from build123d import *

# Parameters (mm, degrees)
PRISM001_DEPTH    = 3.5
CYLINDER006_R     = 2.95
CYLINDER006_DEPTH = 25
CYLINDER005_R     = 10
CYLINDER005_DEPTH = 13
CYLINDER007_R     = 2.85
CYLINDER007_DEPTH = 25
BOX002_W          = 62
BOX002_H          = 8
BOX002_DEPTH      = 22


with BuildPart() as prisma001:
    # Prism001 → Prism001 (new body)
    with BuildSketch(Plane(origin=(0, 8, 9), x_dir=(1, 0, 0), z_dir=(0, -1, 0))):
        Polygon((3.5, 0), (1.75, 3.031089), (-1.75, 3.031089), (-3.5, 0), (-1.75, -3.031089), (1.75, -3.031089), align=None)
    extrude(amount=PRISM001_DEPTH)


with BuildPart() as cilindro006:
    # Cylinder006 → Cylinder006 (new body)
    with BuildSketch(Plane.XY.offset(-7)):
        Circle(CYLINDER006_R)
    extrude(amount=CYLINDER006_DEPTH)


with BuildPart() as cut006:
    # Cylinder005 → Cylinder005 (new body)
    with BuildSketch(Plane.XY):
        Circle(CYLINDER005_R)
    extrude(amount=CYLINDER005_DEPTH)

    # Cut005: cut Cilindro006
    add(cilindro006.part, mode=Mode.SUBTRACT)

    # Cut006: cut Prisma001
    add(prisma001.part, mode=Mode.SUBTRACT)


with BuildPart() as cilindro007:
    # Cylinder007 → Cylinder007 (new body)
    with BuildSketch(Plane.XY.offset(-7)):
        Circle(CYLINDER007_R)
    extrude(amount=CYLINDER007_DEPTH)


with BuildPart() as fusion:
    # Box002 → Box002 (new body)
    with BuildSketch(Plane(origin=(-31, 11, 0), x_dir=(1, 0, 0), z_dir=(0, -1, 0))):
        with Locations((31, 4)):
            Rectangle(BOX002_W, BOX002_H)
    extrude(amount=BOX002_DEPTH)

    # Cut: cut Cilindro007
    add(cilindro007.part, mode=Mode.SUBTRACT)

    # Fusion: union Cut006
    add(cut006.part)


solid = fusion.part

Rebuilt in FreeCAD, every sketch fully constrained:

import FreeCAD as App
import Part
import Sketcher

V = App.Vector
Q = App.Units.Quantity


def add_polygon(sketch, points):
    """Adds a closed chain of lines whose ends are joined by coincident constraints."""
    first, n = sketch.GeometryCount, len(points)
    for a, b in zip(points, points[1:] + points[:1]):
        sketch.addGeometry(Part.LineSegment(App.Vector(*a, 0), App.Vector(*b, 0)), False)
    for i in range(n):
        sketch.addConstraint(Sketcher.Constraint("Coincident", first + i, 2, first + (i + 1) % n, 1))

doc = App.newDocument("Part")
body = doc.addObject("PartDesign::Body", "Body")

# Sketch on XZ plane
sketch1 = doc.addObject("Sketcher::SketchObject", "Sketch")
body.addObject(sketch1)
sketch1.AttachmentSupport = (doc.XZ_Plane, [""])
sketch1.MapMode = "FlatFace"
sketch1.AttachmentOffset = App.Placement(V(0, 0, -8), App.Rotation())
add_polygon(sketch1, [(3.5, 9), (1.75, 12.031089), (-1.75, 12.031089), (-3.5, 9), (-1.75, 5.968911), (1.75, 5.968911)])  # lines 0-5
sketch1.addConstraint(Sketcher.Constraint("Horizontal", 1))
sketch1.addConstraint(Sketcher.Constraint("Horizontal", 4))
sketch1.addConstraint(Sketcher.Constraint("Symmetric", 2, 2, 5, 2, -2))
sketch1.addConstraint(Sketcher.Constraint("Parallel", 0, 3))
sketch1.addConstraint(Sketcher.Constraint("Parallel", 2, 5))
sketch1.addConstraint(Sketcher.Constraint("Vertical", 1, 2, 3, 2))
sketch1.addConstraint(Sketcher.Constraint("Vertical", 0, 2, 4, 2))
sketch1.addConstraint(Sketcher.Constraint("Angle", 0, Q("119.999999 deg")))
sketch1.addConstraint(Sketcher.Constraint("DistanceX", 1, 2, 1, 1, Q("3.5 mm")))
sketch1.addConstraint(Sketcher.Constraint("DistanceY", -1, 1, 2, 2, Q("9 mm")))
sketch1.addConstraint(Sketcher.Constraint("DistanceX", 2, 2, 5, 2, Q("7 mm")))
pad1 = doc.addObject("PartDesign::Pad", "Pad")
body.addObject(pad1)
pad1.Profile = sketch1
pad1.Length = 3.5
body2 = doc.addObject("PartDesign::Body", "Body001")

# Sketch on XY plane
sketch2 = doc.addObject("Sketcher::SketchObject", "Sketch001")
body2.addObject(sketch2)
sketch2.AttachmentSupport = (doc.getObject("XY_Plane001"), [""])
sketch2.MapMode = "FlatFace"
sketch2.AttachmentOffset = App.Placement(V(0, 0, -7), App.Rotation())
sketch2.addGeometry(Part.Circle(V(0, 0, 0), V(0, 0, 1), 2.95), False)
sketch2.addConstraint(Sketcher.Constraint("Coincident", 0, 3, -1, 1))
sketch2.addConstraint(Sketcher.Constraint("Diameter", 0, Q("5.9 mm")))
pad2 = doc.addObject("PartDesign::Pad", "Pad001")
body2.addObject(pad2)
pad2.Profile = sketch2
pad2.Length = 25
body3 = doc.addObject("PartDesign::Body", "Body002")

# Sketch on XY plane
sketch3 = doc.addObject("Sketcher::SketchObject", "Sketch002")
body3.addObject(sketch3)
sketch3.AttachmentSupport = (doc.getObject("XY_Plane002"), [""])
sketch3.MapMode = "FlatFace"
sketch3.addGeometry(Part.Circle(V(0, 0, 0), V(0, 0, 1), 10), False)
sketch3.addConstraint(Sketcher.Constraint("Coincident", 0, 3, -1, 1))
sketch3.addConstraint(Sketcher.Constraint("Diameter", 0, Q("20 mm")))
pad3 = doc.addObject("PartDesign::Pad", "Pad002")
body3.addObject(pad3)
pad3.Profile = sketch3
pad3.Length = 13
doc.recompute()

boolean = doc.addObject("PartDesign::Boolean", "Boolean")
body3.addObject(boolean)
boolean.Type = "Cut"
boolean.addObjects([body2])
doc.recompute()

boolean2 = doc.addObject("PartDesign::Boolean", "Boolean001")
body3.addObject(boolean2)
boolean2.Type = "Cut"
boolean2.addObjects([body])
body4 = doc.addObject("PartDesign::Body", "Body003")

# Sketch on XY plane
sketch4 = doc.addObject("Sketcher::SketchObject", "Sketch003")
body4.addObject(sketch4)
sketch4.AttachmentSupport = (doc.getObject("XY_Plane003"), [""])
sketch4.MapMode = "FlatFace"
sketch4.AttachmentOffset = App.Placement(V(0, 0, -7), App.Rotation())
sketch4.addGeometry(Part.Circle(V(0, 0, 0), V(0, 0, 1), 2.85), False)
sketch4.addConstraint(Sketcher.Constraint("Coincident", 0, 3, -1, 1))
sketch4.addConstraint(Sketcher.Constraint("Diameter", 0, Q("5.7 mm")))
pad4 = doc.addObject("PartDesign::Pad", "Pad003")
body4.addObject(pad4)
pad4.Profile = sketch4
pad4.Length = 25
body5 = doc.addObject("PartDesign::Body", "Body004")

# Sketch on XZ plane
sketch5 = doc.addObject("Sketcher::SketchObject", "Sketch004")
body5.addObject(sketch5)
sketch5.AttachmentSupport = (doc.getObject("XZ_Plane004"), [""])
sketch5.MapMode = "FlatFace"
sketch5.AttachmentOffset = App.Placement(V(0, 0, -11), App.Rotation())
add_polygon(sketch5, [(-31, 8), (-31, 0), (31, 0), (31, 8)])  # lines 0-3
sketch5.addConstraint(Sketcher.Constraint("Vertical", 0))
sketch5.addConstraint(Sketcher.Constraint("Horizontal", 1))
sketch5.addConstraint(Sketcher.Constraint("Vertical", 2))
sketch5.addConstraint(Sketcher.Constraint("Horizontal", 3))
sketch5.addConstraint(Sketcher.Constraint("Symmetric", 0, 2, 1, 2, -1, 1))
sketch5.addConstraint(Sketcher.Constraint("DistanceX", 1, 1, 1, 2, Q("62 mm")))
sketch5.addConstraint(Sketcher.Constraint("DistanceY", 0, 2, 0, 1, Q("8 mm")))
pad5 = doc.addObject("PartDesign::Pad", "Pad004")
body5.addObject(pad5)
pad5.Profile = sketch5
pad5.Length = 22
doc.recompute()

boolean3 = doc.addObject("PartDesign::Boolean", "Boolean002")
body5.addObject(boolean3)
boolean3.Type = "Cut"
boolean3.addObjects([body4])
doc.recompute()

boolean4 = doc.addObject("PartDesign::Boolean", "Boolean003")
body5.addObject(boolean4)
boolean4.Type = "Fuse"
boolean4.addObjects([body3])

doc.recompute()
